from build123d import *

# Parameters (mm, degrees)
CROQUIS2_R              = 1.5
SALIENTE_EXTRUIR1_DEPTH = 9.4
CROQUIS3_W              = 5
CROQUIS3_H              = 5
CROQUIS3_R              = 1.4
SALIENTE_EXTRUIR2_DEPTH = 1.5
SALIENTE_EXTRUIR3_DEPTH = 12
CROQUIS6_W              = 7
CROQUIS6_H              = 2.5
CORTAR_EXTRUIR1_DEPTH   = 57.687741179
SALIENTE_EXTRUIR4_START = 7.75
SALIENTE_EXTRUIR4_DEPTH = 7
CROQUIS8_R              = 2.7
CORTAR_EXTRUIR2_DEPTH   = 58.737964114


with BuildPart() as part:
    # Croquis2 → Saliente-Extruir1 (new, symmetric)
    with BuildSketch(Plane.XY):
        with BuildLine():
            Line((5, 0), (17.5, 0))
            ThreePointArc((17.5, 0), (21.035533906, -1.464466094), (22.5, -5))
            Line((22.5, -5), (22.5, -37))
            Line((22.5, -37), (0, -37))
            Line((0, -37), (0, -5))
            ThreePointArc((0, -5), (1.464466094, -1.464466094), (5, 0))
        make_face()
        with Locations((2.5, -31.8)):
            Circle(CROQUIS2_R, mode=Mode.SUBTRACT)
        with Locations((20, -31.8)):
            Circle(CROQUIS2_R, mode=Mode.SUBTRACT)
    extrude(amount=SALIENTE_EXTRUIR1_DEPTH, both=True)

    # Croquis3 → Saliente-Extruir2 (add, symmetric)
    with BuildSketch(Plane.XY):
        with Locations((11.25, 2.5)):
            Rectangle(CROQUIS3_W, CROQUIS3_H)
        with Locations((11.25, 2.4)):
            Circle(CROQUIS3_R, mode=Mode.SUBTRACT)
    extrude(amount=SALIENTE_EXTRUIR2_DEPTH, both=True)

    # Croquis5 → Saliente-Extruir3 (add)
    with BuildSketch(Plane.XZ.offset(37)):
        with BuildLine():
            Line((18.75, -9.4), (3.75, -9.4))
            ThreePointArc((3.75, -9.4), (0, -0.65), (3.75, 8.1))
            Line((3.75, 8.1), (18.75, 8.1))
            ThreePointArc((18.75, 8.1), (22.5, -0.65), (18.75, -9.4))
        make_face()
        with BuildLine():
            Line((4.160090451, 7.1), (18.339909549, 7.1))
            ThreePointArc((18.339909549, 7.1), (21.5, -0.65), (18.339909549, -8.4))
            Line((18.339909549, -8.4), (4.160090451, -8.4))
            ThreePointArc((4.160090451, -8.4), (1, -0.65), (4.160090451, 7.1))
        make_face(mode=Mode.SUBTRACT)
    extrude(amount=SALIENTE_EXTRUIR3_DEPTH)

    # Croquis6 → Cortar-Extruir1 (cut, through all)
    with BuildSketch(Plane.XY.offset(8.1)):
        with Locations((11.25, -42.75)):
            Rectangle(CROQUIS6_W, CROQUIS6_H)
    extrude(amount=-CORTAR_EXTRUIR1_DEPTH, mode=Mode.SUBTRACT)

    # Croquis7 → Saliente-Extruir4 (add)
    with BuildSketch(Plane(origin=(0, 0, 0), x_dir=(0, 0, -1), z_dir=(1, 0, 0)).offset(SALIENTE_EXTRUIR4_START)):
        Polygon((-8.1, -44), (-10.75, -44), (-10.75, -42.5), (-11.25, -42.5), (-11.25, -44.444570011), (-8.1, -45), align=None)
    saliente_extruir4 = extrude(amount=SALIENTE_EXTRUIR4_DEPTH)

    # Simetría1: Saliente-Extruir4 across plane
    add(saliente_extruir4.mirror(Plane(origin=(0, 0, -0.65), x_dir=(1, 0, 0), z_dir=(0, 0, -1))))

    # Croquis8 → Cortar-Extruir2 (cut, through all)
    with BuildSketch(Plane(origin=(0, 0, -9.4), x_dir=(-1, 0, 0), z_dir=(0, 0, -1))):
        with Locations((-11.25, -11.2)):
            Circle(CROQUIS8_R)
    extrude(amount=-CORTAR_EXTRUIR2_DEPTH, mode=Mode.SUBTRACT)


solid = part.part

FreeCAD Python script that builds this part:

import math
import FreeCAD as App
import Part
import Sketcher
Q = App.Units.Quantity


def add_polygon(sketch, points):
    """Adds a closed chain of lines whose ends are joined by coincident constraints."""
    first, n = sketch.GeometryCount, len(points)
    for a, b in zip(points, points[1:] + points[:1]):
        sketch.addGeometry(Part.LineSegment(App.Vector(*a, 0), App.Vector(*b, 0)), False)
    for i in range(n):
        sketch.addConstraint(Sketcher.Constraint("Coincident", first + i, 2, first + (i + 1) % n, 1))

doc = App.newDocument("Part")
body = doc.addObject("PartDesign::Body", "Body")

# Sketch on XY plane
sketch1 = body.newObject("Sketcher::SketchObject", "Sketch")
sketch1.AttachmentSupport = (doc.getObject("XY_Plane"), [""])
sketch1.MapMode = "FlatFace"
sketch1.addGeometry(Part.LineSegment(App.Vector(17.5, 0, 0), App.Vector(5, 0, 0)), False)
sketch1.addGeometry(Part.ArcOfCircle(Part.Circle(App.Vector(5, -5, 0), App.Vector(0, 0, 1), 5), math.radians(90), math.radians(180)), False)
sketch1.addGeometry(Part.LineSegment(App.Vector(0, -5, 0), App.Vector(0, -37, 0)), False)
sketch1.addGeometry(Part.LineSegment(App.Vector(0, -37, 0), App.Vector(22.5, -37, 0)), False)
sketch1.addGeometry(Part.LineSegment(App.Vector(22.5, -37, 0), App.Vector(22.5, -5, 0)), False)
sketch1.addGeometry(Part.ArcOfCircle(Part.Circle(App.Vector(17.5, -5, 0), App.Vector(0, 0, 1), 5), math.radians(0), math.radians(90)), False)
sketch1.addGeometry(Part.Circle(App.Vector(20, -31.8, 0), App.Vector(0, 0, 1), 1.5), False)
sketch1.addGeometry(Part.Circle(App.Vector(2.5, -31.8, 0), App.Vector(0, 0, 1), 1.5), False)
sketch1.addConstraint(Sketcher.Constraint("Tangent", 0, 2, 1, 1))
sketch1.addConstraint(Sketcher.Constraint("Tangent", 1, 2, 2, 1))
sketch1.addConstraint(Sketcher.Constraint("Coincident", 2, 2, 3, 1))
sketch1.addConstraint(Sketcher.Constraint("Coincident", 3, 2, 4, 1))
sketch1.addConstraint(Sketcher.Constraint("Tangent", 4, 2, 5, 1))
sketch1.addConstraint(Sketcher.Constraint("Tangent", 5, 2, 0, 1))
sketch1.addConstraint(Sketcher.Constraint("Horizontal", 0))
sketch1.addConstraint(Sketcher.Constraint("Vertical", 2))
sketch1.addConstraint(Sketcher.Constraint("Horizontal", 3))
sketch1.addConstraint(Sketcher.Constraint("Vertical", 4))
sketch1.addConstraint(Sketcher.Constraint("Equal", 1, 5))
sketch1.addConstraint(Sketcher.Constraint("Equal", 6, 7))
sketch1.addConstraint(Sketcher.Constraint("PointOnObject", 0, 2, -1))
sketch1.addConstraint(Sketcher.Constraint("PointOnObject", 1, 2, -2))
sketch1.addConstraint(Sketcher.Constraint("Horizontal", 6, 3, 7, 3))
sketch1.addConstraint(Sketcher.Constraint("Diameter", 6, 3.0))
sketch1.addConstraint(Sketcher.Constraint("Radius", 1, 5.0))
sketch1.addConstraint(Sketcher.Constraint("DistanceY", 2, 2, 2, 1, 32.0))
sketch1.addConstraint(Sketcher.Constraint("DistanceX", 0, 2, 0, 1, 12.5))
sketch1.addConstraint(Sketcher.Constraint("DistanceX", -1, 1, 6, 3, 20.0))
sketch1.addConstraint(Sketcher.Constraint("DistanceX", 7, 3, 5, 3, 15.0))
sketch1.addConstraint(Sketcher.Constraint("DistanceY", 6, 3, -1, 1, 31.8))
pad1 = body.newObject("PartDesign::Pad", "Pad")
pad1.Profile = sketch1
pad1.Length = 18.8
pad1.Midplane = True

# Sketch on XY plane
sketch2 = body.newObject("Sketcher::SketchObject", "Sketch001")
sketch2.AttachmentSupport = (doc.getObject("XY_Plane"), [""])
sketch2.MapMode = "FlatFace"
add_polygon(sketch2, [(8.75, 5), (8.75, 0), (13.75, 0), (13.75, 5)])  # lines 0-3
sketch2.addGeometry(Part.Circle(App.Vector(11.25, 2.4, 0), App.Vector(0, 0, 1), 1.4), False)  # 4
sketch2.addConstraint(Sketcher.Constraint("Vertical", 0))
sketch2.addConstraint(Sketcher.Constraint("Horizontal", 1))
sketch2.addConstraint(Sketcher.Constraint("Vertical", 2))
sketch2.addConstraint(Sketcher.Constraint("Horizontal", 3))
sketch2.addConstraint(Sketcher.Constraint("PointOnObject", 0, 2, -1))
sketch2.addConstraint(Sketcher.Constraint("Equal", 3, 0))
sketch2.addConstraint(Sketcher.Constraint("Diameter", 4, 2.8))
sketch2.addConstraint(Sketcher.Constraint("DistanceX", 1, 1, 1, 2, 5.0))
sketch2.addConstraint(Sketcher.Constraint("DistanceY", -1, 1, 4, 3, 2.4))
sketch2.addConstraint(Sketcher.Constraint("DistanceX", 0, 2, 4, 3, 2.5))
sketch2.addConstraint(Sketcher.Constraint("DistanceX", -1, 1, 4, 3, 11.25))
pad2 = body.newObject("PartDesign::Pad", "Pad001")
pad2.Profile = sketch2
pad2.Length = 3
pad2.Midplane = True

# Sketch on XZ plane
sketch3 = body.newObject("Sketcher::SketchObject", "Sketch002")
sketch3.AttachmentSupport = (doc.getObject("XZ_Plane"), [""])
sketch3.MapMode = "FlatFace"
sketch3.AttachmentOffset = App.Placement(App.Vector(0, 0, 37), App.Rotation())
sketch3.addGeometry(Part.LineSegment(App.Vector(3.75, -9.4, 0), App.Vector(18.75, -9.4, 0)), False)
sketch3.addGeometry(Part.ArcOfCircle(Part.Circle(App.Vector(10.416667, -0.65, 0), App.Vector(0, 0, 1), 12.083333), math.radians(-46.397181), math.radians(46.397181)), False)
sketch3.addGeometry(Part.LineSegment(App.Vector(18.75, 8.1, 0), App.Vector(3.75, 8.1, 0)), False)
sketch3.addGeometry(Part.ArcOfCircle(Part.Circle(App.Vector(12.083333, -0.65, 0), App.Vector(0, 0, 1), 12.083333), math.radians(133.602819), math.radians(226.397181)), False)
sketch3.addGeometry(Part.LineSegment(App.Vector(4.16009, 7.1, 0), App.Vector(18.33991, 7.1, 0)), False)
sketch3.addGeometry(Part.ArcOfCircle(Part.Circle(App.Vector(10.416667, -0.65, 0), App.Vector(0, 0, 1), 11.083333), math.radians(-44.366712), math.radians(44.366712)), False)
sketch3.addGeometry(Part.LineSegment(App.Vector(18.33991, -8.4, 0), App.Vector(4.16009, -8.4, 0)), False)
sketch3.addGeometry(Part.ArcOfCircle(Part.Circle(App.Vector(12.083333, -0.65, 0), App.Vector(0, 0, 1), 11.083333), math.radians(135.633288), math.radians(224.366712)), False)
sketch3.addConstraint(Sketcher.Constraint("Coincident", 0, 2, 1, 1))
sketch3.addConstraint(Sketcher.Constraint("Coincident", 1, 2, 2, 1))
sketch3.addConstraint(Sketcher.Constraint("Coincident", 2, 2, 3, 1))
sketch3.addConstraint(Sketcher.Constraint("Coincident", 3, 2, 0, 1))
sketch3.addConstraint(Sketcher.Constraint("Coincident", 4, 2, 5, 2))
sketch3.addConstraint(Sketcher.Constraint("Coincident", 5, 1, 6, 1))
sketch3.addConstraint(Sketcher.Constraint("Coincident", 6, 2, 7, 2))
sketch3.addConstraint(Sketcher.Constraint("Coincident", 7, 1, 4, 1))
sketch3.addConstraint(Sketcher.Constraint("Horizontal", 0))
sketch3.addConstraint(Sketcher.Constraint("Horizontal", 2))
sketch3.addConstraint(Sketcher.Constraint("Horizontal", 4))
sketch3.addConstraint(Sketcher.Constraint("Horizontal", 6))
sketch3.addConstraint(Sketcher.Constraint("Coincident", 5, 3, 1, 3))
sketch3.addConstraint(Sketcher.Constraint("Coincident", 7, 3, 3, 3))
sketch3.addConstraint(Sketcher.Constraint("Equal", 1, 3))
sketch3.addConstraint(Sketcher.Constraint("Equal", 5, 7))
sketch3.addConstraint(Sketcher.Constraint("Horizontal", 1, 3, 3, 3))
sketch3.addConstraint(Sketcher.Constraint("Vertical", 0, 2, 1, 2))
sketch3.addConstraint(Sketcher.Constraint("Vertical", 4, 2, 5, 1))
sketch3.addConstraint(Sketcher.Constraint("DistanceX", 0, 1, 0, 2, 15.0))
sketch3.addConstraint(Sketcher.Constraint("DistanceY", 4, 2, 1, 2, 1.0))
sketch3.addConstraint(Sketcher.Constraint("DistanceY", 0, 2, -1, 1, 9.4))
sketch3.addConstraint(Sketcher.Constraint("DistanceY", -1, 1, 1, 2, 8.1))
sketch3.addConstraint(Sketcher.Constraint("DistanceX", -1, 1, 0, 2, 18.75))
sketch3.addConstraint(Sketcher.Constraint("Radius", 1, 12.083333))
sketch3.addConstraint(Sketcher.Constraint("Radius", 5, 11.083333))
pad3 = body.newObject("PartDesign::Pad", "Pad002")
pad3.Profile = sketch3
pad3.Length = 12

# Sketch on XY plane
sketch4 = body.newObject("Sketcher::SketchObject", "Sketch003")
sketch4.AttachmentSupport = (doc.getObject("XY_Plane"), [""])
sketch4.MapMode = "FlatFace"
sketch4.AttachmentOffset = App.Placement(App.Vector(0, 0, 8.1), App.Rotation())
add_polygon(sketch4, [(7.75, -41.5), (7.75, -44), (14.75, -44), (14.75, -41.5)])  # lines 0-3
sketch4.addConstraint(Sketcher.Constraint("Vertical", 0))
sketch4.addConstraint(Sketcher.Constraint("Horizontal", 1))
sketch4.addConstraint(Sketcher.Constraint("Vertical", 2))
sketch4.addConstraint(Sketcher.Constraint("Horizontal", 3))
sketch4.addConstraint(Sketcher.Constraint("DistanceX", 1, 1, 1, 2, 7.0))
sketch4.addConstraint(Sketcher.Constraint("DistanceY", 0, 2, 0, 1, 2.5))
sketch4.addConstraint(Sketcher.Constraint("DistanceY", 0, 2, -1, 1, 44.0))
sketch4.addConstraint(Sketcher.Constraint("DistanceX", -1, 1, 0, 2, 7.75))
pocket1 = body.newObject("PartDesign::Pocket", "Pocket")
pocket1.Profile = sketch4
pocket1.Type = "ThroughAll"

# Sketch on YZ plane
sketch5 = body.newObject("Sketcher::SketchObject", "Sketch004")
sketch5.AttachmentSupport = (doc.getObject("YZ_Plane"), [""])
sketch5.MapMode = "FlatFace"
sketch5.AttachmentOffset = App.Placement(App.Vector(0, 0, 7.75), App.Rotation())
add_polygon(sketch5, [(-44, 8.1), (-44, 10.75), (-42.5, 10.75), (-42.5, 11.25), (-44.44457, 11.25), (-45, 8.1)])  # lines 0-5
sketch5.addConstraint(Sketcher.Constraint("Vertical", 0))
sketch5.addConstraint(Sketcher.Constraint("Horizontal", 1))
sketch5.addConstraint(Sketcher.Constraint("Vertical", 2))
sketch5.addConstraint(Sketcher.Constraint("Horizontal", 3))
sketch5.addConstraint(Sketcher.Constraint("Horizontal", 5))
sketch5.addConstraint(Sketcher.Constraint("DistanceX", 5, 1, 5, 2, 1.0))
sketch5.addConstraint(Sketcher.Constraint("Angle", 4, Q("-100 deg")))
sketch5.addConstraint(Sketcher.Constraint("DistanceX", 1, 1, 1, 2, 1.5))
sketch5.addConstraint(Sketcher.Constraint("DistanceY", 2, 1, 2, 2, 0.5))
sketch5.addConstraint(Sketcher.Constraint("DistanceX", 0, 2, -1, 1, 44.0))
sketch5.addConstraint(Sketcher.Constraint("DistanceY", 0, 1, 0, 2, 2.65))
sketch5.addConstraint(Sketcher.Constraint("DistanceY", -1, 1, 4, 2, 8.1))
pad4 = body.newObject("PartDesign::Pad", "Pad003")
pad4.Profile = sketch5
pad4.Length = 7
doc.recompute()

datumplane = body.newObject("PartDesign::Plane", "DatumPlane")
datumplane.AttachmentSupport = (doc.getObject("XY_Plane"), [""])
datumplane.MapMode = "FlatFace"
datumplane.AttachmentOffset = App.Placement(App.Vector(0, 0, -0.65), App.Rotation())
mirrored = body.newObject("PartDesign::Mirrored", "Mirrored")
mirrored.Originals = [pad4]
mirrored.MirrorPlane = (datumplane, [""])
body.Tip = mirrored

# Sketch on XY plane
sketch6 = body.newObject("Sketcher::SketchObject", "Sketch005")
sketch6.AttachmentSupport = (doc.getObject("XY_Plane"), [""])
sketch6.MapMode = "FlatFace"
sketch6.AttachmentOffset = App.Placement(App.Vector(0, 0, -9.4), App.Rotation())
sketch6.addGeometry(Part.Circle(App.Vector(11.25, -11.2, 0), App.Vector(0, 0, 1), 2.7), False)
sketch6.addConstraint(Sketcher.Constraint("Diameter", 0, 5.4))
sketch6.addConstraint(Sketcher.Constraint("DistanceY", 0, 3, -1, 1, 11.2))
sketch6.addConstraint(Sketcher.Constraint("DistanceX", -1, 1, 0, 3, 11.25))
pocket2 = body.newObject("PartDesign::Pocket", "Pocket001")
pocket2.Profile = sketch6
pocket2.Type = "ThroughAll"
pocket2.Reversed = True

doc.recompute()
